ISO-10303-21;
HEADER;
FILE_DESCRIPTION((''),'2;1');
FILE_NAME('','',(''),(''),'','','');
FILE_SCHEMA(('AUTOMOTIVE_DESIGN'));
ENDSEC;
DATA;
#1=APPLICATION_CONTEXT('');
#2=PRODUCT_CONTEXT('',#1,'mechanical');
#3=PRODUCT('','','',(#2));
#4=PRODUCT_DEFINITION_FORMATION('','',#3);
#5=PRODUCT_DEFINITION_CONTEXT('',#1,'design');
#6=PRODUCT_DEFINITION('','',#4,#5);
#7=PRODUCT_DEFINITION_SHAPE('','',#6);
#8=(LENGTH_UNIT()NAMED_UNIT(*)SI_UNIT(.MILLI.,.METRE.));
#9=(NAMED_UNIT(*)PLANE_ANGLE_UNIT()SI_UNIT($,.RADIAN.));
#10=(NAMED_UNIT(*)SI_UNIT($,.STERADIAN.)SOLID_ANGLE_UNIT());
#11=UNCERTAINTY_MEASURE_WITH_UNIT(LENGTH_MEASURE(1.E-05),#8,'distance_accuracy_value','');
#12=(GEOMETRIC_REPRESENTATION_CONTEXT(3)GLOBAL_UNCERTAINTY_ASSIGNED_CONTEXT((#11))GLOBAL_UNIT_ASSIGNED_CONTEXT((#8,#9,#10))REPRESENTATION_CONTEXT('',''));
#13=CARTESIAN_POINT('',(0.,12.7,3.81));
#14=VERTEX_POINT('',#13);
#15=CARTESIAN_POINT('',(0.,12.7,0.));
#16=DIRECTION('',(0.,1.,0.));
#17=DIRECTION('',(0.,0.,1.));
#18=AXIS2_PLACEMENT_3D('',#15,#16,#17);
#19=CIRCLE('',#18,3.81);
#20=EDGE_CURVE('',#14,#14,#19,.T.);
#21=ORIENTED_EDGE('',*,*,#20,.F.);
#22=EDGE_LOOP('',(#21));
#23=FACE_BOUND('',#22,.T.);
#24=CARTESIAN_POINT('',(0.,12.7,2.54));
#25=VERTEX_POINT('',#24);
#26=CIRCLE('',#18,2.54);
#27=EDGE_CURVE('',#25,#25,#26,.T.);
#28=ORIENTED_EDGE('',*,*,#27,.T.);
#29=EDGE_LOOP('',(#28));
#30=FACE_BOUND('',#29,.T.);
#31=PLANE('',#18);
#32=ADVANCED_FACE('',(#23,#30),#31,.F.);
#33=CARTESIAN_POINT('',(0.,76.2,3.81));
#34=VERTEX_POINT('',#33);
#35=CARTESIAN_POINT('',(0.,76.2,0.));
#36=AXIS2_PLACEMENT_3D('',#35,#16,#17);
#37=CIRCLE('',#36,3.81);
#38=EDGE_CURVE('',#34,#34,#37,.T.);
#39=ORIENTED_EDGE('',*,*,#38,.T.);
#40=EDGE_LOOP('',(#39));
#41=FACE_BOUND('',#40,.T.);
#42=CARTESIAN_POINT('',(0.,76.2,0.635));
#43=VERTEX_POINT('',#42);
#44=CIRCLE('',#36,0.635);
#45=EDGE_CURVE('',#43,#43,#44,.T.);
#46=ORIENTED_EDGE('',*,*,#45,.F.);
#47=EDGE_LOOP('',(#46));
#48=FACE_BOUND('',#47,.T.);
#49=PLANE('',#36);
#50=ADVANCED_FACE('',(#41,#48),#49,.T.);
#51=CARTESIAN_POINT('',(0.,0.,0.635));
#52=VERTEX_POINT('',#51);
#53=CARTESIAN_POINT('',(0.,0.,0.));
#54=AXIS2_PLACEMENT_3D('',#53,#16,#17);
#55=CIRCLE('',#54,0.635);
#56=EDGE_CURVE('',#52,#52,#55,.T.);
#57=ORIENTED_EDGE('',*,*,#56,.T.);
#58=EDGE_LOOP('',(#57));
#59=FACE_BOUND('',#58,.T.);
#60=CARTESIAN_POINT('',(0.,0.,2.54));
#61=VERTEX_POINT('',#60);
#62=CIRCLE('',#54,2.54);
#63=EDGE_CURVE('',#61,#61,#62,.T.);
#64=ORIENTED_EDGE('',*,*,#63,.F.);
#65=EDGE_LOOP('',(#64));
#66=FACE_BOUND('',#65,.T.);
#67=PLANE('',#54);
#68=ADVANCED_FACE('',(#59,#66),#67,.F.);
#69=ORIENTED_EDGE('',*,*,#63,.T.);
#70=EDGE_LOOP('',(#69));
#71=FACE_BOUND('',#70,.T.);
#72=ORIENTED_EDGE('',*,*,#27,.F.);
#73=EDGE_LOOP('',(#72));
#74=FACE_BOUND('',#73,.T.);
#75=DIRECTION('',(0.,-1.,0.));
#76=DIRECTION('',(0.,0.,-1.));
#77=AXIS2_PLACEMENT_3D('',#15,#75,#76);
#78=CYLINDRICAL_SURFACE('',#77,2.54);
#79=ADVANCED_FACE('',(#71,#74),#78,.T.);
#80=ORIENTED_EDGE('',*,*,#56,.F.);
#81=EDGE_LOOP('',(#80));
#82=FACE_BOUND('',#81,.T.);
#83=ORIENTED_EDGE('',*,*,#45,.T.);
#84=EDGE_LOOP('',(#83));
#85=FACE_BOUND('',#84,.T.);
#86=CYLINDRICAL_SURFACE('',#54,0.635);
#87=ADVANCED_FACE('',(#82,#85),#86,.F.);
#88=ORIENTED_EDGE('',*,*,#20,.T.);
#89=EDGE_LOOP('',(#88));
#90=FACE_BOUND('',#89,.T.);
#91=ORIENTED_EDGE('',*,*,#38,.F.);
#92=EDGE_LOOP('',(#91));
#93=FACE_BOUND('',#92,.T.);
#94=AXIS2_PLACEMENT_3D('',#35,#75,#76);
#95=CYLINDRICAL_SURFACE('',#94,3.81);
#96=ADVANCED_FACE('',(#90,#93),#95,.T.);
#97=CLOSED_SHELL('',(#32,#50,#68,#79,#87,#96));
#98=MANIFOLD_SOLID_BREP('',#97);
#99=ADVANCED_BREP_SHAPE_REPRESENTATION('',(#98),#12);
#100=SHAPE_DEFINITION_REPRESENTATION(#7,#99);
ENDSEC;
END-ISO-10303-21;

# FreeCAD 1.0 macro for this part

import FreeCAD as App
import Part
import Sketcher
from FreeCAD import Vector
Q = App.Units.Quantity

doc = App.newDocument("Part")
body = doc.addObject("PartDesign::Body", "Body")

sketch1 = body.newObject("Sketcher::SketchObject", "Sketch")
sketch1.AttachmentSupport = (doc.getObject("XZ_Plane"), [""])
sketch1.MapMode = "FlatFace"
sketch1.addGeometry(Part.Circle(Vector(0, 0, 0), Vector(0, 0, 1), 2.5), False)
sketch1.addConstraint([
    Sketcher.Constraint("Coincident", 0, 3, -1, 1),
    Sketcher.Constraint("Diameter", 0, Q("0.2 in")),
])
pad1 = body.newObject("PartDesign::Pad", "Pad")
pad1.Profile = sketch1
pad1.Length = Q("0.5 in")
pad1.Reversed = True

sketch2 = body.newObject("Sketcher::SketchObject", "Sketch001")
sketch2.AttachmentSupport = (doc.getObject("XZ_Plane"), [""])
sketch2.MapMode = "FlatFace"
sketch2.AttachmentOffset = App.Placement(Vector(0, 0, -0.5 * 25.4), App.Rotation())
sketch2.addGeometry(Part.Circle(Vector(0, 0, 0), Vector(0, 0, 1), 3.8), False)
sketch2.addConstraint([
    Sketcher.Constraint("Coincident", 0, 3, -1, 1),
    Sketcher.Constraint("Diameter", 0, Q("0.3 in")),
])
pad2 = body.newObject("PartDesign::Pad", "Pad001")
pad2.Profile = sketch2
pad2.Length = Q("2.5 in")
pad2.Reversed = True

sketch3 = body.newObject("Sketcher::SketchObject", "Sketch002")
sketch3.AttachmentSupport = (doc.getObject("XZ_Plane"), [""])
sketch3.MapMode = "FlatFace"
sketch3.AttachmentOffset = App.Placement(Vector(0, 0, -3 * 25.4), App.Rotation())
sketch3.addGeometry(Part.Circle(Vector(0, 0, 0), Vector(0, 0, 1), 0.6), False)
sketch3.addConstraint([
    Sketcher.Constraint("Coincident", 0, 3, -1, 1),
    Sketcher.Constraint("Diameter", 0, Q("0.05 in")),
])
pocket1 = body.newObject("PartDesign::Pocket", "Pocket")
pocket1.Profile = sketch3
pocket1.Type = "ThroughAll"
pocket1.Reversed = True

doc.recompute()
